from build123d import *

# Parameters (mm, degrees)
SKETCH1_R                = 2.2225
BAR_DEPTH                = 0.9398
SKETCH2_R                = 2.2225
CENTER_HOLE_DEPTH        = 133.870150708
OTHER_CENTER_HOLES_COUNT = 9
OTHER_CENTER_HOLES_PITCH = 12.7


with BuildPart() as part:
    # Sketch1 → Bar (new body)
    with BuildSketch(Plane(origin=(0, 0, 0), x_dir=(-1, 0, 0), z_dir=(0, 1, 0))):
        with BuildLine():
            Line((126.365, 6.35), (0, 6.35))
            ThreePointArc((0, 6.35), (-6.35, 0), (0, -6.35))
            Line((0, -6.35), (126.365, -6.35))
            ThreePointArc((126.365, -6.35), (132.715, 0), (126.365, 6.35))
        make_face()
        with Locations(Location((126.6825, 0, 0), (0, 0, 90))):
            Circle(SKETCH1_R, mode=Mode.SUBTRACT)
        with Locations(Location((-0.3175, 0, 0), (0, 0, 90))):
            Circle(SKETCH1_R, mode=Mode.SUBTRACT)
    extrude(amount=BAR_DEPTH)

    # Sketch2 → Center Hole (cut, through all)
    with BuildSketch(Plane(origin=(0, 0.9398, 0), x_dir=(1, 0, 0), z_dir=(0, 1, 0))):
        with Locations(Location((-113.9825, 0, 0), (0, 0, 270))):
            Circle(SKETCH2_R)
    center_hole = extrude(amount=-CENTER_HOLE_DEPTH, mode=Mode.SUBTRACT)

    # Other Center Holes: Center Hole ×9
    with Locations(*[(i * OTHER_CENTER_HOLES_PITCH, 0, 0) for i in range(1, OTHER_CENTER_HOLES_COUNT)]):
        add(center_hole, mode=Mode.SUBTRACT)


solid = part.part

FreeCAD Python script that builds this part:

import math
import FreeCAD as App
import Part
import Sketcher
from FreeCAD import Vector
Q = App.Units.Quantity

doc = App.newDocument("Part")
body = doc.addObject("PartDesign::Body", "Body")

# Sketch on XZ plane
sketch1 = doc.addObject("Sketcher::SketchObject", "Sketch")
body.addObject(sketch1)
sketch1.AttachmentSupport = (doc.XZ_Plane, [""])
sketch1.MapMode = "FlatFace"
sketch1.addGeometry([
    Part.LineSegment(Vector(-126.4, 6.3, 0), Vector(0, 6.3, 0)),  # 0
    Part.ArcOfCircle(Part.Circle(Vector(0, 0, 0), Vector(0, 0, 1), 6.3), math.radians(-90), math.radians(90)),  # 1
    Part.LineSegment(Vector(0, -6.3, 0), Vector(-126.4, -6.3, 0)),  # 2
    Part.ArcOfCircle(Part.Circle(Vector(-126.4, 0, 0), Vector(0, 0, 1), 6.3), math.radians(90), math.radians(270)),  # 3
    Part.Circle(Vector(0.3, 0, 0), Vector(0, 0, 1), 2.2),  # 4
    Part.Circle(Vector(-126.7, 0, 0), Vector(0, 0, 1), 2.2),  # 5
], False)
sketch1.addConstraint([
    Sketcher.Constraint("Tangent", 0, 2, 1, 2),
    Sketcher.Constraint("Tangent", 1, 1, 2, 1),
    Sketcher.Constraint("Tangent", 2, 2, 3, 2),
    Sketcher.Constraint("Tangent", 3, 1, 0, 1),
    Sketcher.Constraint("Horizontal", 0),
    Sketcher.Constraint("Horizontal", 2),
    Sketcher.Constraint("Coincident", 1, 3, -1, 1),
    Sketcher.Constraint("Equal", 4, 5),
    Sketcher.Constraint("PointOnObject", 4, 3, -1),
    Sketcher.Constraint("PointOnObject", 5, 3, -1),
    Sketcher.Constraint("Radius", 1, Q("0.25 in")),
    Sketcher.Constraint("Diameter", 4, Q("0.175 in")),
    Sketcher.Constraint("DistanceX", 5, 3, 4, 3, Q("5 in")),
    Sketcher.Constraint("DistanceX", 0, 1, 0, 2, Q("4.975 in")),
    Sketcher.Constraint("DistanceX", -1, 1, 4, 3, Q("0.0125 in")),
])
pad1 = doc.addObject("PartDesign::Pad", "Pad")
body.addObject(pad1)
pad1.Profile = sketch1
pad1.Length = Q("0.037 in")
pad1.Reversed = True

# Sketch on XZ plane
sketch2 = doc.addObject("Sketcher::SketchObject", "Sketch001")
body.addObject(sketch2)
sketch2.AttachmentSupport = (doc.XZ_Plane, [""])
sketch2.MapMode = "FlatFace"
sketch2.AttachmentOffset = App.Placement(Vector(0, 0, -0.037 * 25.4), App.Rotation())
sketch2.addGeometry(Part.Circle(Vector(-114, 0, 0), Vector(0, 0, 1), 2.2), False)
sketch2.addConstraint([
    Sketcher.Constraint("PointOnObject", 0, 3, -1),
    Sketcher.Constraint("Diameter", 0, Q("0.175 in")),
    Sketcher.Constraint("DistanceX", 0, 3, -1, 1, Q("4.4875 in")),
])
pocket1 = doc.addObject("PartDesign::Pocket", "Pocket")
body.addObject(pocket1)
pocket1.Profile = sketch2
pocket1.Type = "ThroughAll"
pocket1.Reversed = True
doc.recompute()

linearpattern = doc.addObject("PartDesign::LinearPattern", "LinearPattern")
body.addObject(linearpattern)
linearpattern.Originals = [pocket1]
linearpattern.Direction = (doc.X_Axis, [""])
linearpattern.Mode = "offset"
linearpattern.Offset = Q("0.5 in")
linearpattern.Occurrences = 9
body.Tip = linearpattern

doc.recompute()
